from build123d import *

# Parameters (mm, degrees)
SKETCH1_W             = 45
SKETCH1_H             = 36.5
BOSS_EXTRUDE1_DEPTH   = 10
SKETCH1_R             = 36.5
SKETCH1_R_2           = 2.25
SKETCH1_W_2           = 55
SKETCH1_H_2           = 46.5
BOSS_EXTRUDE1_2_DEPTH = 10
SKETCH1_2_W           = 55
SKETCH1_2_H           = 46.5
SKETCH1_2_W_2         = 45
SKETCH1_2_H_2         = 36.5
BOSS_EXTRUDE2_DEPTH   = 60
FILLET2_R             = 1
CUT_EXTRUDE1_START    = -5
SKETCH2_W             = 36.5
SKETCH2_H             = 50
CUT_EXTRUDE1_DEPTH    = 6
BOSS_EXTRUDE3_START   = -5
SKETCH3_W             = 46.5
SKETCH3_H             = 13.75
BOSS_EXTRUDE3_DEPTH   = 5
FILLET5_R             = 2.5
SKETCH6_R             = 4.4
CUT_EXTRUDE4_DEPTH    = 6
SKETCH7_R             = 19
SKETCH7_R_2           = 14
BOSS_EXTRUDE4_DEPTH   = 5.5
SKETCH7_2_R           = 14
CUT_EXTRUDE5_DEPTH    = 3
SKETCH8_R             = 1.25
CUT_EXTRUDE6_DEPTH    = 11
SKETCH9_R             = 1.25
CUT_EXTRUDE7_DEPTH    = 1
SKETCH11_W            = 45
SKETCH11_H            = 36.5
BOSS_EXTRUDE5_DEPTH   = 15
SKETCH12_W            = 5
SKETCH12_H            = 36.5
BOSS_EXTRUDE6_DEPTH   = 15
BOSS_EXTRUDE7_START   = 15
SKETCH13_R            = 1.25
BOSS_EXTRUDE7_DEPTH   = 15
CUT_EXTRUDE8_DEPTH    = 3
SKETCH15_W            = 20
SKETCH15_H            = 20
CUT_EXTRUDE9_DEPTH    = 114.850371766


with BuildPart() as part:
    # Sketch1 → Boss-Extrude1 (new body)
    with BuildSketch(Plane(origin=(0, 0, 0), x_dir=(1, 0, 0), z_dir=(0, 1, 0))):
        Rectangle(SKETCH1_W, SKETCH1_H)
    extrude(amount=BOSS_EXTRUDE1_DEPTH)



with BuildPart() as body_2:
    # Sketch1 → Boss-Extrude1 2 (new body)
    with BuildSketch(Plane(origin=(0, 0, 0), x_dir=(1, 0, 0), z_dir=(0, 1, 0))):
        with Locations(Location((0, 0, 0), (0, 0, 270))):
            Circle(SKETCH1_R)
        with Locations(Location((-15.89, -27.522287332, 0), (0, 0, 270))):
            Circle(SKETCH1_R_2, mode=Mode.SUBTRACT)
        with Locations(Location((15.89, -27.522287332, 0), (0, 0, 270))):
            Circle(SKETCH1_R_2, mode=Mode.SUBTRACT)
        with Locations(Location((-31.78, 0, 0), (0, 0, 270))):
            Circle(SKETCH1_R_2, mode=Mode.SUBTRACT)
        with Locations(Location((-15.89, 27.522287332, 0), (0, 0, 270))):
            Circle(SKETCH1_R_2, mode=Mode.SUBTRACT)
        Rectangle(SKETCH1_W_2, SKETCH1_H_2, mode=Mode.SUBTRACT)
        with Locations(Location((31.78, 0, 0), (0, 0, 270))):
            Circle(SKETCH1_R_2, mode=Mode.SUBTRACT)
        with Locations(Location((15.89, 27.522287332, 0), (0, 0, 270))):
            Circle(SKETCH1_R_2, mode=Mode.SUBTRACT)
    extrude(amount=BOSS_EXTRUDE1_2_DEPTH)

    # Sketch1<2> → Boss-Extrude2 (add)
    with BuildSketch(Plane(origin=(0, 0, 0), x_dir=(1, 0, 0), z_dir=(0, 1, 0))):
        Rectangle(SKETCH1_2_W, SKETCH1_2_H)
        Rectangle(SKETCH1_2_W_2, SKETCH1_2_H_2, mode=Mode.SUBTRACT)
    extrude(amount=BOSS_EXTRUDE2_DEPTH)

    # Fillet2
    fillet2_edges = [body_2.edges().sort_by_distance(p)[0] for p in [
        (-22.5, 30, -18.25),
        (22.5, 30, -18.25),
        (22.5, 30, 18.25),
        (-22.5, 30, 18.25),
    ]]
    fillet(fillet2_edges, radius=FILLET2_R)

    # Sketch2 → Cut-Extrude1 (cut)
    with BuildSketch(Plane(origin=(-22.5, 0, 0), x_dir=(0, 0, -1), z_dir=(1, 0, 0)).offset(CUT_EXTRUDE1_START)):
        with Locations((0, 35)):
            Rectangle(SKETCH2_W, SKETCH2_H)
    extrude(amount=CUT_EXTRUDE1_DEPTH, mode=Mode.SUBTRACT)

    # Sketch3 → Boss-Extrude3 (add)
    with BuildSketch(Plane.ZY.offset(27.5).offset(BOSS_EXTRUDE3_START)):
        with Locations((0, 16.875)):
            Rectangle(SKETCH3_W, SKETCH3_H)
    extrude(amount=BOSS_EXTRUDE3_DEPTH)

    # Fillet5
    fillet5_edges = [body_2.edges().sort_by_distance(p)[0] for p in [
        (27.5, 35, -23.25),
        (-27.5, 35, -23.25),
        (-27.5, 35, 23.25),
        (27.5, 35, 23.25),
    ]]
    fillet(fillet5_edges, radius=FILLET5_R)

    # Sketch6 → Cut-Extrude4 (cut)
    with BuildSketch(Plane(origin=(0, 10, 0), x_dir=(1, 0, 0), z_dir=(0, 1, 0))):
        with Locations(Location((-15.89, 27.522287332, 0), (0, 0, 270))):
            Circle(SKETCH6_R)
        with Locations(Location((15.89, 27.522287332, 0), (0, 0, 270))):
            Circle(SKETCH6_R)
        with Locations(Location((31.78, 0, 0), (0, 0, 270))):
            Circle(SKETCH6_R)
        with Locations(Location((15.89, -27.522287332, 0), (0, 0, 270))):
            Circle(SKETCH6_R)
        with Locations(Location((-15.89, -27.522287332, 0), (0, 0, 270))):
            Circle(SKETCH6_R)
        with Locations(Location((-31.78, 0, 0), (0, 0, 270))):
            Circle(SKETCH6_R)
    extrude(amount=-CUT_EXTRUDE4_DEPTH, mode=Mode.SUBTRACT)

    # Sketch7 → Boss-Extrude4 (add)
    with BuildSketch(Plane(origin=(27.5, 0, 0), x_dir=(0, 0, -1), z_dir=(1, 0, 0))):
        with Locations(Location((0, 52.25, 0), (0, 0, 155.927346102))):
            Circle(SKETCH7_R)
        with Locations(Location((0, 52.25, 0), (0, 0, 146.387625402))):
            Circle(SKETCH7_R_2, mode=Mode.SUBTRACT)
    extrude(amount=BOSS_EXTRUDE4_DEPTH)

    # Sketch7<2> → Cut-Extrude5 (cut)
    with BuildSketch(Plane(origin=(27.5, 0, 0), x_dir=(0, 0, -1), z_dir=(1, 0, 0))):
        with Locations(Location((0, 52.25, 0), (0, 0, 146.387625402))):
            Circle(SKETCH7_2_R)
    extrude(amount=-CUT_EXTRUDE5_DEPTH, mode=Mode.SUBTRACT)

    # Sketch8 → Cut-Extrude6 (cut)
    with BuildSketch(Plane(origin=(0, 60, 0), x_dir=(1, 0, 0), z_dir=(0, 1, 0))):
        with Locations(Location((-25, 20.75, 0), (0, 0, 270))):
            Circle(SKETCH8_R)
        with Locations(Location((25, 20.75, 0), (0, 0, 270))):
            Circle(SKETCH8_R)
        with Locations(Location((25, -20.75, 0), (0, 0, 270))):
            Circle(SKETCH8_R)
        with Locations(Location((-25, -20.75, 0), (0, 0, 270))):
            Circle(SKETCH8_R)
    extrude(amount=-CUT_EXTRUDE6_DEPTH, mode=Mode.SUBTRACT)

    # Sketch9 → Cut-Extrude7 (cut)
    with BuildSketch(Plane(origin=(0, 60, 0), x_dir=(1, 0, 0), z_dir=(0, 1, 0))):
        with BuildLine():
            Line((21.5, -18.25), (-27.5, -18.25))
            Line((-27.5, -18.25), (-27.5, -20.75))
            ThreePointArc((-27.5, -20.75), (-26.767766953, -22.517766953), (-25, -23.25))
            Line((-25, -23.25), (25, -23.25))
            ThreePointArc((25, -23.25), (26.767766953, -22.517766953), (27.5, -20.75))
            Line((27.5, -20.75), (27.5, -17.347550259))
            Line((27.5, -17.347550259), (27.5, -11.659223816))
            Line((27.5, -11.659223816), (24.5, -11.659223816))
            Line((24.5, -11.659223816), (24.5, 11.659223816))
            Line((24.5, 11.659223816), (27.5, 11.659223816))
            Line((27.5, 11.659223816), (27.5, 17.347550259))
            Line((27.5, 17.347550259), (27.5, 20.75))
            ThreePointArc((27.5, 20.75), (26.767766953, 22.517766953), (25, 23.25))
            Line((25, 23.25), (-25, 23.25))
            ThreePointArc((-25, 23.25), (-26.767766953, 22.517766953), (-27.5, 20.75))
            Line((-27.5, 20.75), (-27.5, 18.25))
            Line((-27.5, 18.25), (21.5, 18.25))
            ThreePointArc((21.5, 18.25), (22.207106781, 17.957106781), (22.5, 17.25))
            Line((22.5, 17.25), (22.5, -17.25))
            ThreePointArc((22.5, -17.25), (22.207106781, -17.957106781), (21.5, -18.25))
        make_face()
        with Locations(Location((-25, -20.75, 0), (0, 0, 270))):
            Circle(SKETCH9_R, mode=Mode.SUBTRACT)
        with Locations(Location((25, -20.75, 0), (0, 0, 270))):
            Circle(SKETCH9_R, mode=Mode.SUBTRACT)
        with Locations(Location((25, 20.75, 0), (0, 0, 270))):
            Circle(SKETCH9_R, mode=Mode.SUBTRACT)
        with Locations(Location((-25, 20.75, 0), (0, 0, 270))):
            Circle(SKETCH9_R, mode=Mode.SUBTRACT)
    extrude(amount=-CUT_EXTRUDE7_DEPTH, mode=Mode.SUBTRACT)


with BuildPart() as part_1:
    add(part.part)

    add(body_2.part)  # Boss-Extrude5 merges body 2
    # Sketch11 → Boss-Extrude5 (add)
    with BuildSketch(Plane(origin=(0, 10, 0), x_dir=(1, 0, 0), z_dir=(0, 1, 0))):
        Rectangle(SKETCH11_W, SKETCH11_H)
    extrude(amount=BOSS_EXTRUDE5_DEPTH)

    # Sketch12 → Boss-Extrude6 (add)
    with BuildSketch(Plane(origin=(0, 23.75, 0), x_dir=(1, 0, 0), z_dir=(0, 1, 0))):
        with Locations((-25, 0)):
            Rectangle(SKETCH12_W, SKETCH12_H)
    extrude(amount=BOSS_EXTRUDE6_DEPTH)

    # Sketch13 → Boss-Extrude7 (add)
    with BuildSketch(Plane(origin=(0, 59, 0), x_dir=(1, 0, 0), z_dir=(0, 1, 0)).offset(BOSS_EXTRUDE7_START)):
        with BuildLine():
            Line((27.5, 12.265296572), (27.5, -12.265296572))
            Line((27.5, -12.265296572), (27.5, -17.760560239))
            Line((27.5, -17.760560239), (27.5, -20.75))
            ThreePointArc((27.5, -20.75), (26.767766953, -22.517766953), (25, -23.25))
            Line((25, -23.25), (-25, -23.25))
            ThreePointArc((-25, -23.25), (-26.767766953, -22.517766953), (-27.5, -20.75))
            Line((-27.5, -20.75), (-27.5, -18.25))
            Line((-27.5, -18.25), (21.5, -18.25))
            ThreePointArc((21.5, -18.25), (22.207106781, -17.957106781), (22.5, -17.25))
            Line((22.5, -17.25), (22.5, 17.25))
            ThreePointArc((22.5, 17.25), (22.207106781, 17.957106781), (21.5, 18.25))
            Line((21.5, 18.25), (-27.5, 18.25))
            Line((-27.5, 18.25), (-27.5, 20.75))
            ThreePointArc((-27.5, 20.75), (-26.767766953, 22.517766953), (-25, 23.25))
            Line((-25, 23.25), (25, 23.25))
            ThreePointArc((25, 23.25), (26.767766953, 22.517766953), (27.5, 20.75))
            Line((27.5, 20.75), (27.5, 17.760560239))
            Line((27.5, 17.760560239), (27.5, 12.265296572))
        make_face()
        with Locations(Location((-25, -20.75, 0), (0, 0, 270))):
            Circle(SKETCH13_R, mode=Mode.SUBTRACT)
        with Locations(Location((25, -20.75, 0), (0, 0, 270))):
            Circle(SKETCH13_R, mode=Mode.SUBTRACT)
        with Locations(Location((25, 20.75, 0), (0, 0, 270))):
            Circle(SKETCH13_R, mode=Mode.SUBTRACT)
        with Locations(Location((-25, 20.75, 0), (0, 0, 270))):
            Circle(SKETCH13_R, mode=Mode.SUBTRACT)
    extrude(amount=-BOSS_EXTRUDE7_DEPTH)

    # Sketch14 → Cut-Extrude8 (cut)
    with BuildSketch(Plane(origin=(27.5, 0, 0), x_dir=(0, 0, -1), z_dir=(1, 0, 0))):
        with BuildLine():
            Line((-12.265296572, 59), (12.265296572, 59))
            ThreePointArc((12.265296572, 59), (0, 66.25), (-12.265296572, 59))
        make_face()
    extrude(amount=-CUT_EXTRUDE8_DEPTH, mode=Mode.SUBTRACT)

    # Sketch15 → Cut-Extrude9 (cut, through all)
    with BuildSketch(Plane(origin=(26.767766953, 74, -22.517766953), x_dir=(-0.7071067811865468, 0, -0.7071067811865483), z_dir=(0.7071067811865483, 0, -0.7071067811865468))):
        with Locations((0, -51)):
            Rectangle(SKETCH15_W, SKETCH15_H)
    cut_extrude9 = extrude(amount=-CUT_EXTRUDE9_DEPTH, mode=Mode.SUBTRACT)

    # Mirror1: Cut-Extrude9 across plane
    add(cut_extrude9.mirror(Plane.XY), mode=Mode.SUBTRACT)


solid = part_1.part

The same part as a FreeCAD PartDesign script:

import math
import FreeCAD as App
import Part
import Sketcher

V = App.Vector


def edges_at(feature, points):
    """Names of the edges that pass closest to the given points."""
    edges = feature.Shape.Edges
    near = lambda p: min(range(len(edges)), key=lambda i: edges[i].distToShape(Part.Vertex(*p))[0])
    return sorted({f"Edge{near(p) + 1}" for p in points})

doc = App.newDocument("Part")
body = doc.addObject("PartDesign::Body", "Body")

sketch1 = body.newObject("Sketcher::SketchObject", "Sketch")
sketch1.AttachmentSupport = (doc.getObject("XZ_Plane"), [""])
sketch1.MapMode = "FlatFace"
sketch1.addGeometry([
    Part.LineSegment(V(-22, -18, 0), V(-22, 18, 0)),
    Part.LineSegment(V(-22, 18, 0), V(22, 18, 0)),
    Part.LineSegment(V(22, 18, 0), V(22, -18, 0)),
    Part.LineSegment(V(22, -18, 0), V(-22, -18, 0)),
], False)
sketch1.addConstraint([
    Sketcher.Constraint("Coincident", 0, 2, 1, 1),
    Sketcher.Constraint("Coincident", 1, 2, 2, 1),
    Sketcher.Constraint("Coincident", 2, 2, 3, 1),
    Sketcher.Constraint("Coincident", 3, 2, 0, 1),
    Sketcher.Constraint("Vertical", 0),
    Sketcher.Constraint("Horizontal", 1),
    Sketcher.Constraint("Vertical", 2),
    Sketcher.Constraint("Horizontal", 3),
    Sketcher.Constraint("Symmetric", 0, 2, 2, 2, -1, 1),
    Sketcher.Constraint("DistanceX", 1, 1, 1, 2, 45.0),
    Sketcher.Constraint("DistanceY", 0, 1, 0, 2, 36.5),
])
pad1 = body.newObject("PartDesign::Pad", "Pad")
pad1.Profile = sketch1
pad1.Length = 10
pad1.Reversed = True
body2 = doc.addObject("PartDesign::Body", "Body001")

sketch2 = body2.newObject("Sketcher::SketchObject", "Sketch001")
sketch2.AttachmentSupport = (doc.getObject("XZ_Plane001"), [""])
sketch2.MapMode = "FlatFace"
sketch2.addGeometry([
    Part.Circle(V(0, 0, 0), V(0, 0, 1), 36.5),
    Part.Circle(V(-15.9, -27.5, 0), V(0, 0, 1), 2.2),
    Part.Circle(V(-31.8, 0, 0), V(0, 0, 1), 2.2),
    Part.LineSegment(V(27.5, 23.2, 0), V(-27.5, 23.2, 0)),
    Part.LineSegment(V(-27.5, 23.2, 0), V(-27.5, -23.2, 0)),
    Part.LineSegment(V(-27.5, -23.2, 0), V(27.5, -23.2, 0)),
    Part.LineSegment(V(27.5, -23.2, 0), V(27.5, 23.2, 0)),
    Part.Circle(V(-15.9, 27.5, 0), V(0, 0, 1), 2.2),
    Part.Circle(V(15.9, -27.5, 0), V(0, 0, 1), 2.2),
    Part.Circle(V(31.8, 0, 0), V(0, 0, 1), 2.2),
    Part.Circle(V(15.9, 27.5, 0), V(0, 0, 1), 2.2),
], False)
sketch2.addConstraint([
    Sketcher.Constraint("Coincident", 3, 2, 4, 1),
    Sketcher.Constraint("Coincident", 4, 2, 5, 1),
    Sketcher.Constraint("Coincident", 5, 2, 6, 1),
    Sketcher.Constraint("Coincident", 6, 2, 3, 1),
    Sketcher.Constraint("Horizontal", 3),
    Sketcher.Constraint("Vertical", 4),
    Sketcher.Constraint("Horizontal", 5),
    Sketcher.Constraint("Vertical", 6),
    Sketcher.Constraint("Coincident", 0, 3, -1, 1),
    Sketcher.Constraint("Equal", 1, 2),
    Sketcher.Constraint("Equal", 2, 7),
    Sketcher.Constraint("Equal", 7, 8),
    Sketcher.Constraint("Equal", 8, 9),
    Sketcher.Constraint("Equal", 9, 10),
    Sketcher.Constraint("Symmetric", 7, 3, 8, 3, -1, 1),
    Sketcher.Constraint("Symmetric", 2, 3, 9, 3, -1, 1),
    Sketcher.Constraint("Symmetric", 1, 3, 10, 3, -1, 1),
    Sketcher.Constraint("Symmetric", 3, 2, 5, 2, -1, 1),
    Sketcher.Constraint("Symmetric", 1, 3, 8, 3, -2),
    Sketcher.Constraint("PointOnObject", 2, 3, -1),
    Sketcher.Constraint("Diameter", 0, 73.0),
    Sketcher.Constraint("Diameter", 1, 4.5),
    Sketcher.Constraint("DistanceX", 3, 2, 3, 1, 55.0),
    Sketcher.Constraint("DistanceY", 4, 2, 4, 1, 46.5),
    Sketcher.Constraint("DistanceX", 1, 3, -1, 1, 15.89),
    Sketcher.Constraint("DistanceX", 2, 3, -1, 1, 31.78),
    Sketcher.Constraint("DistanceY", 1, 3, -1, 1, 27.522287),
])
pad2 = body2.newObject("PartDesign::Pad", "Pad001")
pad2.Profile = sketch2
pad2.Length = 10
pad2.Reversed = True

sketch3 = body2.newObject("Sketcher::SketchObject", "Sketch002")
sketch3.AttachmentSupport = (doc.getObject("XZ_Plane001"), [""])
sketch3.MapMode = "FlatFace"
sketch3.addGeometry([
    Part.LineSegment(V(-28, -23, 0), V(-28, 23, 0)),
    Part.LineSegment(V(-28, 23, 0), V(28, 23, 0)),
    Part.LineSegment(V(28, 23, 0), V(28, -23, 0)),
    Part.LineSegment(V(28, -23, 0), V(-28, -23, 0)),
    Part.LineSegment(V(22, 18, 0), V(-22, 18, 0)),
    Part.LineSegment(V(-22, 18, 0), V(-22, -18, 0)),
    Part.LineSegment(V(-22, -18, 0), V(22, -18, 0)),
    Part.LineSegment(V(22, -18, 0), V(22, 18, 0)),
], False)
sketch3.addConstraint([
    Sketcher.Constraint("Coincident", 0, 2, 1, 1),
    Sketcher.Constraint("Coincident", 1, 2, 2, 1),
    Sketcher.Constraint("Coincident", 2, 2, 3, 1),
    Sketcher.Constraint("Coincident", 3, 2, 0, 1),
    Sketcher.Constraint("Coincident", 4, 2, 5, 1),
    Sketcher.Constraint("Coincident", 5, 2, 6, 1),
    Sketcher.Constraint("Coincident", 6, 2, 7, 1),
    Sketcher.Constraint("Coincident", 7, 2, 4, 1),
    Sketcher.Constraint("Vertical", 0),
    Sketcher.Constraint("Horizontal", 1),
    Sketcher.Constraint("Vertical", 2),
    Sketcher.Constraint("Horizontal", 3),
    Sketcher.Constraint("Horizontal", 4),
    Sketcher.Constraint("Vertical", 5),
    Sketcher.Constraint("Horizontal", 6),
    Sketcher.Constraint("Vertical", 7),
    Sketcher.Constraint("Symmetric", 0, 2, 2, 2, -1, 1),
    Sketcher.Constraint("Symmetric", 4, 2, 6, 2, -1, 1),
    Sketcher.Constraint("DistanceX", 1, 1, 1, 2, 55.0),
    Sketcher.Constraint("DistanceX", 4, 2, 4, 1, 45.0),
    Sketcher.Constraint("DistanceY", 0, 1, 0, 2, 46.5),
    Sketcher.Constraint("DistanceY", 5, 2, 5, 1, 36.5),
])
pad3 = body2.newObject("PartDesign::Pad", "Pad002")
pad3.Profile = sketch3
pad3.Length = 60
pad3.Reversed = True
doc.recompute()

fillet = body2.newObject("PartDesign::Fillet", "Fillet")
fillet.Base = (pad3, edges_at(pad3, [
    (-22.5, 30, -18.25),
    (22.5, 30, -18.25),
    (22.5, 30, 18.25),
    (-22.5, 30, 18.25),
]))
fillet.Radius = 1

sketch4 = body2.newObject("Sketcher::SketchObject", "Sketch003")
sketch4.AttachmentSupport = (doc.getObject("YZ_Plane001"), [""])
sketch4.MapMode = "FlatFace"
sketch4.AttachmentOffset = App.Placement(V(0, 0, -27.5), App.Rotation())
sketch4.addGeometry([
    Part.LineSegment(V(60, 18, 0), V(10, 18, 0)),
    Part.LineSegment(V(10, 18, 0), V(10, -18, 0)),
    Part.LineSegment(V(10, -18, 0), V(60, -18, 0)),
    Part.LineSegment(V(60, -18, 0), V(60, 18, 0)),
], False)
sketch4.addConstraint([
    Sketcher.Constraint("Coincident", 0, 2, 1, 1),
    Sketcher.Constraint("Coincident", 1, 2, 2, 1),
    Sketcher.Constraint("Coincident", 2, 2, 3, 1),
    Sketcher.Constraint("Coincident", 3, 2, 0, 1),
    Sketcher.Constraint("Horizontal", 0),
    Sketcher.Constraint("Vertical", 1),
    Sketcher.Constraint("Horizontal", 2),
    Sketcher.Constraint("Vertical", 3),
    Sketcher.Constraint("DistanceX", 0, 2, 0, 1, 50.0),
    Sketcher.Constraint("DistanceY", 1, 2, 1, 1, 36.5),
    Sketcher.Constraint("DistanceX", -1, 1, 0, 2, 10.0),
    Sketcher.Constraint("DistanceY", -1, 1, 0, 2, 18.25),
])
pocket1 = body2.newObject("PartDesign::Pocket", "Pocket")
pocket1.Profile = sketch4
pocket1.Length = 6
pocket1.Reversed = True

sketch5 = body2.newObject("Sketcher::SketchObject", "Sketch004")
sketch5.AttachmentSupport = (doc.getObject("YZ_Plane001"), [""])
sketch5.MapMode = "FlatFace"
sketch5.AttachmentOffset = App.Placement(V(0, 0, -22.5), App.Rotation())
sketch5.addGeometry([
    Part.LineSegment(V(24, -23, 0), V(10, -23, 0)),
    Part.LineSegment(V(10, -23, 0), V(10, 23, 0)),
    Part.LineSegment(V(10, 23, 0), V(24, 23, 0)),
    Part.LineSegment(V(24, 23, 0), V(24, -23, 0)),
], False)
sketch5.addConstraint([
    Sketcher.Constraint("Coincident", 0, 2, 1, 1),
    Sketcher.Constraint("Coincident", 1, 2, 2, 1),
    Sketcher.Constraint("Coincident", 2, 2, 3, 1),
    Sketcher.Constraint("Coincident", 3, 2, 0, 1),
    Sketcher.Constraint("Horizontal", 0),
    Sketcher.Constraint("Vertical", 1),
    Sketcher.Constraint("Horizontal", 2),
    Sketcher.Constraint("Vertical", 3),
    Sketcher.Constraint("DistanceY", 1, 1, 1, 2, 46.5),
    Sketcher.Constraint("DistanceX", -1, 1, 0, 2, 10.0),
    Sketcher.Constraint("DistanceX", 0, 2, 0, 1, 13.75),
    Sketcher.Constraint("DistanceY", 0, 2, -1, 1, 23.25),
])
pad4 = body2.newObject("PartDesign::Pad", "Pad003")
pad4.Profile = sketch5
pad4.Length = 5
pad4.Reversed = True
doc.recompute()

fillet2 = body2.newObject("PartDesign::Fillet", "Fillet001")
fillet2.Base = (pad4, edges_at(pad4, [
    (27.5, 35, -23.25),
    (-27.5, 35, -23.25),
    (-27.5, 35, 23.25),
    (27.5, 35, 23.25),
]))
fillet2.Radius = 2.5

sketch6 = body2.newObject("Sketcher::SketchObject", "Sketch005")
sketch6.AttachmentSupport = (doc.getObject("XZ_Plane001"), [""])
sketch6.MapMode = "FlatFace"
sketch6.AttachmentOffset = App.Placement(V(0, 0, -10), App.Rotation())
sketch6.addGeometry([
    Part.Circle(V(-15.9, -27.5, 0), V(0, 0, 1), 4.4),
    Part.Circle(V(15.9, -27.5, 0), V(0, 0, 1), 4.4),
    Part.Circle(V(31.8, 0, 0), V(0, 0, 1), 4.4),
    Part.Circle(V(15.9, 27.5, 0), V(0, 0, 1), 4.4),
    Part.Circle(V(-15.9, 27.5, 0), V(0, 0, 1), 4.4),
    Part.Circle(V(-31.8, 0, 0), V(0, 0, 1), 4.4),
], False)
sketch6.addConstraint([
    Sketcher.Constraint("Equal", 0, 1),
    Sketcher.Constraint("Equal", 1, 2),
    Sketcher.Constraint("Equal", 2, 3),
    Sketcher.Constraint("Equal", 3, 4),
    Sketcher.Constraint("Equal", 4, 5),
    Sketcher.Constraint("Symmetric", 0, 3, 3, 3, -1, 1),
    Sketcher.Constraint("Symmetric", 1, 3, 4, 3, -1, 1),
    Sketcher.Constraint("Symmetric", 2, 3, 5, 3, -1, 1),
    Sketcher.Constraint("Symmetric", 0, 3, 1, 3, -2),
    Sketcher.Constraint("PointOnObject", 2, 3, -1),
    Sketcher.Constraint("Diameter", 0, 8.8),
    Sketcher.Constraint("DistanceX", 0, 3, -1, 1, 15.89),
    Sketcher.Constraint("DistanceX", -1, 1, 2, 3, 31.78),
    Sketcher.Constraint("DistanceY", 0, 3, -1, 1, 27.522287),
])
pocket2 = body2.newObject("PartDesign::Pocket", "Pocket001")
pocket2.Profile = sketch6
pocket2.Length = 6
pocket2.Reversed = True

sketch7 = body2.newObject("Sketcher::SketchObject", "Sketch006")
sketch7.AttachmentSupport = (doc.getObject("YZ_Plane001"), [""])
sketch7.MapMode = "FlatFace"
sketch7.AttachmentOffset = App.Placement(V(0, 0, 27.5), App.Rotation())
sketch7.addGeometry([
    Part.Circle(V(52, 0, 0), V(0, 0, 1), 19),
    Part.Circle(V(52, 0, 0), V(0, 0, 1), 14),
], False)
sketch7.addConstraint([
    Sketcher.Constraint("Coincident", 1, 3, 0, 3),
    Sketcher.Constraint("PointOnObject", 0, 3, -1),
    Sketcher.Constraint("Diameter", 0, 38.0),
    Sketcher.Constraint("Diameter", 1, 28.0),
    Sketcher.Constraint("DistanceX", -1, 1, 0, 3, 52.25),
])
pad5 = body2.newObject("PartDesign::Pad", "Pad004")
pad5.Profile = sketch7
pad5.Length = 5.5

sketch8 = body2.newObject("Sketcher::SketchObject", "Sketch007")
sketch8.AttachmentSupport = (doc.getObject("YZ_Plane001"), [""])
sketch8.MapMode = "FlatFace"
sketch8.AttachmentOffset = App.Placement(V(0, 0, 27.5), App.Rotation())
sketch8.addGeometry(Part.Circle(V(52, 0, 0), V(0, 0, 1), 14), False)
sketch8.addConstraint([
    Sketcher.Constraint("PointOnObject", 0, 3, -1),
    Sketcher.Constraint("Diameter", 0, 28.0),
    Sketcher.Constraint("DistanceX", -1, 1, 0, 3, 52.25),
])
pocket3 = body2.newObject("PartDesign::Pocket", "Pocket002")
pocket3.Profile = sketch8
pocket3.Length = 3

sketch9 = body2.newObject("Sketcher::SketchObject", "Sketch008")
sketch9.AttachmentSupport = (doc.getObject("XZ_Plane001"), [""])
sketch9.MapMode = "FlatFace"
sketch9.AttachmentOffset = App.Placement(V(0, 0, -60), App.Rotation())
sketch9.addGeometry([
    Part.Circle(V(-25, -20.8, 0), V(0, 0, 1), 1.2),
    Part.Circle(V(25, -20.8, 0), V(0, 0, 1), 1.2),
    Part.Circle(V(25, 20.8, 0), V(0, 0, 1), 1.2),
    Part.Circle(V(-25, 20.8, 0), V(0, 0, 1), 1.2),
], False)
sketch9.addConstraint([
    Sketcher.Constraint("Equal", 0, 1),
    Sketcher.Constraint("Equal", 1, 2),
    Sketcher.Constraint("Equal", 2, 3),
    Sketcher.Constraint("Symmetric", 0, 3, 2, 3, -1, 1),
    Sketcher.Constraint("Symmetric", 1, 3, 3, 3, -1, 1),
    Sketcher.Constraint("Symmetric", 0, 3, 1, 3, -2),
    Sketcher.Constraint("Diameter", 0, 2.5),
    Sketcher.Constraint("DistanceX", 0, 3, -1, 1, 25.0),
    Sketcher.Constraint("DistanceY", 1, 3, 2, 3, 41.5),
])
pocket4 = body2.newObject("PartDesign::Pocket", "Pocket003")
pocket4.Profile = sketch9
pocket4.Length = 11
pocket4.Reversed = True

sketch10 = body2.newObject("Sketcher::SketchObject", "Sketch009")
sketch10.AttachmentSupport = (doc.getObject("XZ_Plane001"), [""])
sketch10.MapMode = "FlatFace"
sketch10.AttachmentOffset = App.Placement(V(0, 0, -60), App.Rotation())
sketch10.addGeometry([
    Part.LineSegment(V(21.5, 18.2, 0), V(-27.5, 18.2, 0)),
    Part.LineSegment(V(-27.5, 18.2, 0), V(-27.5, 20.8, 0)),
    Part.ArcOfCircle(Part.Circle(V(-25, 20.8, 0), V(0, 0, 1), 2.5), math.radians(90), math.radians(180)),
    Part.LineSegment(V(-25, 23.2, 0), V(25, 23.2, 0)),
    Part.ArcOfCircle(Part.Circle(V(25, 20.8, 0), V(0, 0, 1), 2.5), math.radians(0), math.radians(90)),
    Part.LineSegment(V(27.5, 20.8, 0), V(27.5, 11.7, 0)),
    Part.LineSegment(V(27.5, 11.7, 0), V(24.5, 11.7, 0)),
    Part.LineSegment(V(24.5, 11.7, 0), V(24.5, -11.7, 0)),
    Part.LineSegment(V(24.5, -11.7, 0), V(27.5, -11.7, 0)),
    Part.LineSegment(V(27.5, -11.7, 0), V(27.5, -20.8, 0)),
    Part.ArcOfCircle(Part.Circle(V(25, -20.8, 0), V(0, 0, 1), 2.5), math.radians(-90), math.radians(0)),
    Part.LineSegment(V(25, -23.2, 0), V(-25, -23.2, 0)),
    Part.ArcOfCircle(Part.Circle(V(-25, -20.8, 0), V(0, 0, 1), 2.5), math.radians(180), math.radians(270)),
    Part.LineSegment(V(-27.5, -20.8, 0), V(-27.5, -18.2, 0)),
    Part.LineSegment(V(-27.5, -18.2, 0), V(21.5, -18.2, 0)),
    Part.ArcOfCircle(Part.Circle(V(21.5, -17.2, 0), V(0, 0, 1), 1), math.radians(-90), math.radians(0)),
    Part.LineSegment(V(22.5, -17.2, 0), V(22.5, 17.2, 0)),
    Part.ArcOfCircle(Part.Circle(V(21.5, 17.2, 0), V(0, 0, 1), 1), math.radians(0), math.radians(90)),
    Part.Circle(V(-25, 20.8, 0), V(0, 0, 1), 1.2),
    Part.Circle(V(25, 20.8, 0), V(0, 0, 1), 1.2),
    Part.Circle(V(-25, -20.8, 0), V(0, 0, 1), 1.2),
    Part.Circle(V(25, -20.8, 0), V(0, 0, 1), 1.2),
], False)
sketch10.addConstraint([
    Sketcher.Constraint("Coincident", 0, 2, 1, 1),
    Sketcher.Constraint("Tangent", 1, 2, 2, 2),
    Sketcher.Constraint("Tangent", 2, 1, 3, 1),
    Sketcher.Constraint("Tangent", 3, 2, 4, 2),
    Sketcher.Constraint("Tangent", 4, 1, 5, 1),
    Sketcher.Constraint("Coincident", 5, 2, 6, 1),
    Sketcher.Constraint("Coincident", 6, 2, 7, 1),
    Sketcher.Constraint("Coincident", 7, 2, 8, 1),
    Sketcher.Constraint("Coincident", 8, 2, 9, 1),
    Sketcher.Constraint("Tangent", 9, 2, 10, 2),
    Sketcher.Constraint("Tangent", 10, 1, 11, 1),
    Sketcher.Constraint("Tangent", 11, 2, 12, 2),
    Sketcher.Constraint("Tangent", 12, 1, 13, 1),
    Sketcher.Constraint("Coincident", 13, 2, 14, 1),
    Sketcher.Constraint("Tangent", 14, 2, 15, 1),
    Sketcher.Constraint("Tangent", 15, 2, 16, 1),
    Sketcher.Constraint("Tangent", 16, 2, 17, 1),
    Sketcher.Constraint("Tangent", 17, 2, 0, 1),
    Sketcher.Constraint("Horizontal", 0),
    Sketcher.Constraint("Vertical", 1),
    Sketcher.Constraint("Horizontal", 3),
    Sketcher.Constraint("Vertical", 5),
    Sketcher.Constraint("Horizontal", 6),
    Sketcher.Constraint("Vertical", 7),
    Sketcher.Constraint("Horizontal", 8),
    Sketcher.Constraint("Vertical", 9),
    Sketcher.Constraint("Horizontal", 11),
    Sketcher.Constraint("Vertical", 13),
    Sketcher.Constraint("Horizontal", 14),
    Sketcher.Constraint("Vertical", 16),
    Sketcher.Constraint("Coincident", 18, 3, 2, 3),
    Sketcher.Constraint("Coincident", 19, 3, 4, 3),
    Sketcher.Constraint("Coincident", 20, 3, 12, 3),
    Sketcher.Constraint("Coincident", 21, 3, 10, 3),
    Sketcher.Constraint("Equal", 2, 4),
    Sketcher.Constraint("Equal", 4, 10),
    Sketcher.Constraint("Equal", 10, 12),
    Sketcher.Constraint("Equal", 15, 17),
    Sketcher.Constraint("Equal", 18, 19),
    Sketcher.Constraint("Equal", 19, 20),
    Sketcher.Constraint("Equal", 20, 21),
    Sketcher.Constraint("Symmetric", 2, 3, 10, 3, -1, 1),
    Sketcher.Constraint("Symmetric", 5, 2, 8, 2, -1),
    Sketcher.Constraint("Symmetric", 0, 2, 13, 2, -1),
    Sketcher.Constraint("Radius", 15, 1.0),
    Sketcher.Constraint("Diameter", 18, 2.5),
    Sketcher.Constraint("Radius", 2, 2.5),
    Sketcher.Constraint("DistanceX", 0, 2, 0, 1, 49.0),
    Sketcher.Constraint("DistanceX", 3, 1, 3, 2, 50.0),
    Sketcher.Constraint("DistanceX", 6, 2, 6, 1, 3.0),
    Sketcher.Constraint("DistanceY", 1, 1, 1, 2, 2.5),
    Sketcher.Constraint("DistanceY", 16, 1, 16, 2, 34.5),
    Sketcher.Constraint("DistanceY", 5, 2, 5, 1, 9.090776),
])
pocket5 = body2.newObject("PartDesign::Pocket", "Pocket004")
pocket5.Profile = sketch10
pocket5.Length = 1
pocket5.Reversed = True
doc.recompute()

boolean = body.newObject("PartDesign::Boolean", "Boolean")
boolean.Type = "Fuse"
boolean.addObjects([body2])

sketch11 = body.newObject("Sketcher::SketchObject", "Sketch010")
sketch11.AttachmentSupport = (doc.getObject("XZ_Plane"), [""])
sketch11.MapMode = "FlatFace"
sketch11.AttachmentOffset = App.Placement(V(0, 0, -10), App.Rotation())
sketch11.addGeometry([
    Part.LineSegment(V(-22, -18, 0), V(-22, 18, 0)),
    Part.LineSegment(V(-22, 18, 0), V(22, 18, 0)),
    Part.LineSegment(V(22, 18, 0), V(22, -18, 0)),
    Part.LineSegment(V(22, -18, 0), V(-22, -18, 0)),
], False)
sketch11.addConstraint([
    Sketcher.Constraint("Coincident", 0, 2, 1, 1),
    Sketcher.Constraint("Coincident", 1, 2, 2, 1),
    Sketcher.Constraint("Coincident", 2, 2, 3, 1),
    Sketcher.Constraint("Coincident", 3, 2, 0, 1),
    Sketcher.Constraint("Vertical", 0),
    Sketcher.Constraint("Horizontal", 1),
    Sketcher.Constraint("Vertical", 2),
    Sketcher.Constraint("Horizontal", 3),
    Sketcher.Constraint("Symmetric", 0, 2, 2, 2, -1, 1),
    Sketcher.Constraint("DistanceX", 1, 1, 1, 2, 45.0),
    Sketcher.Constraint("DistanceY", 0, 1, 0, 2, 36.5),
])
pad6 = body.newObject("PartDesign::Pad", "Pad005")
pad6.Profile = sketch11
pad6.Length = 15
pad6.Reversed = True

sketch12 = body.newObject("Sketcher::SketchObject", "Sketch011")
sketch12.AttachmentSupport = (doc.getObject("XZ_Plane"), [""])
sketch12.MapMode = "FlatFace"
sketch12.AttachmentOffset = App.Placement(V(0, 0, -23.75), App.Rotation())
sketch12.addGeometry([
    Part.LineSegment(V(-28, -18, 0), V(-28, 18, 0)),
    Part.LineSegment(V(-28, 18, 0), V(-22, 18, 0)),
    Part.LineSegment(V(-22, 18, 0), V(-22, -18, 0)),
    Part.LineSegment(V(-22, -18, 0), V(-28, -18, 0)),
], False)
sketch12.addConstraint([
    Sketcher.Constraint("Coincident", 0, 2, 1, 1),
    Sketcher.Constraint("Coincident", 1, 2, 2, 1),
    Sketcher.Constraint("Coincident", 2, 2, 3, 1),
    Sketcher.Constraint("Coincident", 3, 2, 0, 1),
    Sketcher.Constraint("Vertical", 0),
    Sketcher.Constraint("Horizontal", 1),
    Sketcher.Constraint("Vertical", 2),
    Sketcher.Constraint("Horizontal", 3),
    Sketcher.Constraint("DistanceX", 1, 1, 1, 2, 5.0),
    Sketcher.Constraint("DistanceY", 0, 1, 0, 2, 36.5),
    Sketcher.Constraint("DistanceX", 0, 2, -1, 1, 27.5),
    Sketcher.Constraint("DistanceY", -1, 1, 0, 2, 18.25),
])
pad7 = body.newObject("PartDesign::Pad", "Pad006")
pad7.Profile = sketch12
pad7.Length = 15
pad7.Reversed = True

sketch13 = body.newObject("Sketcher::SketchObject", "Sketch012")
sketch13.AttachmentSupport = (doc.getObject("XZ_Plane"), [""])
sketch13.MapMode = "FlatFace"
sketch13.AttachmentOffset = App.Placement(V(0, 0, -74), App.Rotation())
sketch13.addGeometry([
    Part.ArcOfCircle(Part.Circle(V(25, 20.8, 0), V(0, 0, 1), 2.5), math.radians(0), math.radians(90)),
    Part.LineSegment(V(27.5, 20.8, 0), V(27.5, -20.8, 0)),
    Part.ArcOfCircle(Part.Circle(V(25, -20.8, 0), V(0, 0, 1), 2.5), math.radians(-90), math.radians(0)),
    Part.LineSegment(V(25, -23.2, 0), V(-25, -23.2, 0)),
    Part.ArcOfCircle(Part.Circle(V(-25, -20.8, 0), V(0, 0, 1), 2.5), math.radians(180), math.radians(270)),
    Part.LineSegment(V(-27.5, -20.8, 0), V(-27.5, -18.2, 0)),
    Part.LineSegment(V(-27.5, -18.2, 0), V(21.5, -18.2, 0)),
    Part.ArcOfCircle(Part.Circle(V(21.5, -17.2, 0), V(0, 0, 1), 1), math.radians(-90), math.radians(0)),
    Part.LineSegment(V(22.5, -17.2, 0), V(22.5, 17.2, 0)),
    Part.ArcOfCircle(Part.Circle(V(21.5, 17.2, 0), V(0, 0, 1), 1), math.radians(0), math.radians(90)),
    Part.LineSegment(V(21.5, 18.2, 0), V(-27.5, 18.2, 0)),
    Part.LineSegment(V(-27.5, 18.2, 0), V(-27.5, 20.8, 0)),
    Part.ArcOfCircle(Part.Circle(V(-25, 20.8, 0), V(0, 0, 1), 2.5), math.radians(90), math.radians(180)),
    Part.LineSegment(V(-25, 23.2, 0), V(25, 23.2, 0)),
    Part.Circle(V(25, 20.8, 0), V(0, 0, 1), 1.2),
    Part.Circle(V(-25, 20.8, 0), V(0, 0, 1), 1.2),
    Part.Circle(V(25, -20.8, 0), V(0, 0, 1), 1.2),
    Part.Circle(V(-25, -20.8, 0), V(0, 0, 1), 1.2),
], False)
sketch13.addConstraint([
    Sketcher.Constraint("Tangent", 0, 1, 1, 1),
    Sketcher.Constraint("Tangent", 1, 2, 2, 2),
    Sketcher.Constraint("Tangent", 2, 1, 3, 1),
    Sketcher.Constraint("Tangent", 3, 2, 4, 2),
    Sketcher.Constraint("Tangent", 4, 1, 5, 1),
    Sketcher.Constraint("Coincident", 5, 2, 6, 1),
    Sketcher.Constraint("Tangent", 6, 2, 7, 1),
    Sketcher.Constraint("Tangent", 7, 2, 8, 1),
    Sketcher.Constraint("Tangent", 8, 2, 9, 1),
    Sketcher.Constraint("Tangent", 9, 2, 10, 1),
    Sketcher.Constraint("Coincident", 10, 2, 11, 1),
    Sketcher.Constraint("Tangent", 11, 2, 12, 2),
    Sketcher.Constraint("Tangent", 12, 1, 13, 1),
    Sketcher.Constraint("Tangent", 13, 2, 0, 2),
    Sketcher.Constraint("Vertical", 1),
    Sketcher.Constraint("Horizontal", 3),
    Sketcher.Constraint("Vertical", 5),
    Sketcher.Constraint("Horizontal", 6),
    Sketcher.Constraint("Vertical", 8),
    Sketcher.Constraint("Horizontal", 10),
    Sketcher.Constraint("Vertical", 11),
    Sketcher.Constraint("Horizontal", 13),
    Sketcher.Constraint("Coincident", 14, 3, 0, 3),
    Sketcher.Constraint("Coincident", 15, 3, 12, 3),
    Sketcher.Constraint("Coincident", 16, 3, 2, 3),
    Sketcher.Constraint("Coincident", 17, 3, 4, 3),
    Sketcher.Constraint("Equal", 0, 2),
    Sketcher.Constraint("Equal", 2, 4),
    Sketcher.Constraint("Equal", 7, 9),
    Sketcher.Constraint("Equal", 4, 12),
    Sketcher.Constraint("Equal", 14, 15),
    Sketcher.Constraint("Equal", 15, 16),
    Sketcher.Constraint("Equal", 16, 17),
    Sketcher.Constraint("Symmetric", 0, 3, 4, 3, -1, 1),
    Sketcher.Constraint("Symmetric", 5, 2, 10, 2, -1),
    Sketcher.Constraint("Radius", 7, 1.0),
    Sketcher.Constraint("Diameter", 14, 2.5),
    Sketcher.Constraint("Radius", 0, 2.5),
    Sketcher.Constraint("DistanceX", 3, 2, 3, 1, 50.0),
    Sketcher.Constraint("DistanceX", 6, 1, 6, 2, 49.0),
    Sketcher.Constraint("DistanceY", 1, 2, 1, 1, 41.5),
    Sketcher.Constraint("DistanceY", 5, 1, 5, 2, 2.5),
])
pad8 = body.newObject("PartDesign::Pad", "Pad007")
pad8.Profile = sketch13
pad8.Length = 15

sketch14 = body.newObject("Sketcher::SketchObject", "Sketch013")
sketch14.AttachmentSupport = (doc.getObject("YZ_Plane"), [""])
sketch14.MapMode = "FlatFace"
sketch14.AttachmentOffset = App.Placement(V(0, 0, 27.5), App.Rotation())
sketch14.addGeometry([
    Part.LineSegment(V(59, 12, 0), V(59, -12, 0)),
    Part.ArcOfCircle(Part.Circle(V(52, 0, 0), V(0, 0, 1), 14), math.radians(-61), math.radians(61)),
], False)
sketch14.addConstraint([
    Sketcher.Constraint("Coincident", 0, 1, 1, 2),
    Sketcher.Constraint("Coincident", 1, 1, 0, 2),
    Sketcher.Constraint("Vertical", 0),
    Sketcher.Constraint("PointOnObject", 1, 3, -1),
    Sketcher.Constraint("Radius", 1, 14.0),
    Sketcher.Constraint("DistanceX", -1, 1, 0, 1, 59.0),
    Sketcher.Constraint("DistanceX", -1, 1, 1, 3, 52.25),
])
pocket6 = body.newObject("PartDesign::Pocket", "Pocket005")
pocket6.Profile = sketch14
pocket6.Length = 3

sketch15 = body.newObject("Sketcher::SketchObject", "Sketch014")
sketch15.Placement = App.Placement(V(26.767767, 74, -22.517767), App.Rotation(V(-0.707106781, 0, -0.707106781), V(0, 0.999999999, 0), V(0.707106781, 0, -0.707106781), "ZXY"))
sketch15.addGeometry([
    Part.LineSegment(V(-10, -41, 0), V(-10, -61, 0)),
    Part.LineSegment(V(-10, -61, 0), V(10, -61, 0)),
    Part.LineSegment(V(10, -61, 0), V(10, -41, 0)),
    Part.LineSegment(V(10, -41, 0), V(-10, -41, 0)),
], False)
sketch15.addConstraint([
    Sketcher.Constraint("Coincident", 0, 2, 1, 1),
    Sketcher.Constraint("Coincident", 1, 2, 2, 1),
    Sketcher.Constraint("Coincident", 2, 2, 3, 1),
    Sketcher.Constraint("Coincident", 3, 2, 0, 1),
    Sketcher.Constraint("Vertical", 0),
    Sketcher.Constraint("Horizontal", 1),
    Sketcher.Constraint("Vertical", 2),
    Sketcher.Constraint("Horizontal", 3),
    Sketcher.Constraint("Equal", 3, 0),
    Sketcher.Constraint("DistanceX", 1, 1, 1, 2, 20.0),
    Sketcher.Constraint("DistanceX", 0, 2, -1, 1, 10.0),
    Sketcher.Constraint("DistanceY", 0, 2, -1, 1, 61.0),
])
pocket7 = body.newObject("PartDesign::Pocket", "Pocket006")
pocket7.Profile = sketch15
pocket7.Type = "ThroughAll"
doc.recompute()

mirrored = body.newObject("PartDesign::Mirrored", "Mirrored")
mirrored.Originals = [pocket7]
mirrored.MirrorPlane = (doc.getObject("XY_Plane"), [""])
body.Tip = mirrored

doc.recompute()
